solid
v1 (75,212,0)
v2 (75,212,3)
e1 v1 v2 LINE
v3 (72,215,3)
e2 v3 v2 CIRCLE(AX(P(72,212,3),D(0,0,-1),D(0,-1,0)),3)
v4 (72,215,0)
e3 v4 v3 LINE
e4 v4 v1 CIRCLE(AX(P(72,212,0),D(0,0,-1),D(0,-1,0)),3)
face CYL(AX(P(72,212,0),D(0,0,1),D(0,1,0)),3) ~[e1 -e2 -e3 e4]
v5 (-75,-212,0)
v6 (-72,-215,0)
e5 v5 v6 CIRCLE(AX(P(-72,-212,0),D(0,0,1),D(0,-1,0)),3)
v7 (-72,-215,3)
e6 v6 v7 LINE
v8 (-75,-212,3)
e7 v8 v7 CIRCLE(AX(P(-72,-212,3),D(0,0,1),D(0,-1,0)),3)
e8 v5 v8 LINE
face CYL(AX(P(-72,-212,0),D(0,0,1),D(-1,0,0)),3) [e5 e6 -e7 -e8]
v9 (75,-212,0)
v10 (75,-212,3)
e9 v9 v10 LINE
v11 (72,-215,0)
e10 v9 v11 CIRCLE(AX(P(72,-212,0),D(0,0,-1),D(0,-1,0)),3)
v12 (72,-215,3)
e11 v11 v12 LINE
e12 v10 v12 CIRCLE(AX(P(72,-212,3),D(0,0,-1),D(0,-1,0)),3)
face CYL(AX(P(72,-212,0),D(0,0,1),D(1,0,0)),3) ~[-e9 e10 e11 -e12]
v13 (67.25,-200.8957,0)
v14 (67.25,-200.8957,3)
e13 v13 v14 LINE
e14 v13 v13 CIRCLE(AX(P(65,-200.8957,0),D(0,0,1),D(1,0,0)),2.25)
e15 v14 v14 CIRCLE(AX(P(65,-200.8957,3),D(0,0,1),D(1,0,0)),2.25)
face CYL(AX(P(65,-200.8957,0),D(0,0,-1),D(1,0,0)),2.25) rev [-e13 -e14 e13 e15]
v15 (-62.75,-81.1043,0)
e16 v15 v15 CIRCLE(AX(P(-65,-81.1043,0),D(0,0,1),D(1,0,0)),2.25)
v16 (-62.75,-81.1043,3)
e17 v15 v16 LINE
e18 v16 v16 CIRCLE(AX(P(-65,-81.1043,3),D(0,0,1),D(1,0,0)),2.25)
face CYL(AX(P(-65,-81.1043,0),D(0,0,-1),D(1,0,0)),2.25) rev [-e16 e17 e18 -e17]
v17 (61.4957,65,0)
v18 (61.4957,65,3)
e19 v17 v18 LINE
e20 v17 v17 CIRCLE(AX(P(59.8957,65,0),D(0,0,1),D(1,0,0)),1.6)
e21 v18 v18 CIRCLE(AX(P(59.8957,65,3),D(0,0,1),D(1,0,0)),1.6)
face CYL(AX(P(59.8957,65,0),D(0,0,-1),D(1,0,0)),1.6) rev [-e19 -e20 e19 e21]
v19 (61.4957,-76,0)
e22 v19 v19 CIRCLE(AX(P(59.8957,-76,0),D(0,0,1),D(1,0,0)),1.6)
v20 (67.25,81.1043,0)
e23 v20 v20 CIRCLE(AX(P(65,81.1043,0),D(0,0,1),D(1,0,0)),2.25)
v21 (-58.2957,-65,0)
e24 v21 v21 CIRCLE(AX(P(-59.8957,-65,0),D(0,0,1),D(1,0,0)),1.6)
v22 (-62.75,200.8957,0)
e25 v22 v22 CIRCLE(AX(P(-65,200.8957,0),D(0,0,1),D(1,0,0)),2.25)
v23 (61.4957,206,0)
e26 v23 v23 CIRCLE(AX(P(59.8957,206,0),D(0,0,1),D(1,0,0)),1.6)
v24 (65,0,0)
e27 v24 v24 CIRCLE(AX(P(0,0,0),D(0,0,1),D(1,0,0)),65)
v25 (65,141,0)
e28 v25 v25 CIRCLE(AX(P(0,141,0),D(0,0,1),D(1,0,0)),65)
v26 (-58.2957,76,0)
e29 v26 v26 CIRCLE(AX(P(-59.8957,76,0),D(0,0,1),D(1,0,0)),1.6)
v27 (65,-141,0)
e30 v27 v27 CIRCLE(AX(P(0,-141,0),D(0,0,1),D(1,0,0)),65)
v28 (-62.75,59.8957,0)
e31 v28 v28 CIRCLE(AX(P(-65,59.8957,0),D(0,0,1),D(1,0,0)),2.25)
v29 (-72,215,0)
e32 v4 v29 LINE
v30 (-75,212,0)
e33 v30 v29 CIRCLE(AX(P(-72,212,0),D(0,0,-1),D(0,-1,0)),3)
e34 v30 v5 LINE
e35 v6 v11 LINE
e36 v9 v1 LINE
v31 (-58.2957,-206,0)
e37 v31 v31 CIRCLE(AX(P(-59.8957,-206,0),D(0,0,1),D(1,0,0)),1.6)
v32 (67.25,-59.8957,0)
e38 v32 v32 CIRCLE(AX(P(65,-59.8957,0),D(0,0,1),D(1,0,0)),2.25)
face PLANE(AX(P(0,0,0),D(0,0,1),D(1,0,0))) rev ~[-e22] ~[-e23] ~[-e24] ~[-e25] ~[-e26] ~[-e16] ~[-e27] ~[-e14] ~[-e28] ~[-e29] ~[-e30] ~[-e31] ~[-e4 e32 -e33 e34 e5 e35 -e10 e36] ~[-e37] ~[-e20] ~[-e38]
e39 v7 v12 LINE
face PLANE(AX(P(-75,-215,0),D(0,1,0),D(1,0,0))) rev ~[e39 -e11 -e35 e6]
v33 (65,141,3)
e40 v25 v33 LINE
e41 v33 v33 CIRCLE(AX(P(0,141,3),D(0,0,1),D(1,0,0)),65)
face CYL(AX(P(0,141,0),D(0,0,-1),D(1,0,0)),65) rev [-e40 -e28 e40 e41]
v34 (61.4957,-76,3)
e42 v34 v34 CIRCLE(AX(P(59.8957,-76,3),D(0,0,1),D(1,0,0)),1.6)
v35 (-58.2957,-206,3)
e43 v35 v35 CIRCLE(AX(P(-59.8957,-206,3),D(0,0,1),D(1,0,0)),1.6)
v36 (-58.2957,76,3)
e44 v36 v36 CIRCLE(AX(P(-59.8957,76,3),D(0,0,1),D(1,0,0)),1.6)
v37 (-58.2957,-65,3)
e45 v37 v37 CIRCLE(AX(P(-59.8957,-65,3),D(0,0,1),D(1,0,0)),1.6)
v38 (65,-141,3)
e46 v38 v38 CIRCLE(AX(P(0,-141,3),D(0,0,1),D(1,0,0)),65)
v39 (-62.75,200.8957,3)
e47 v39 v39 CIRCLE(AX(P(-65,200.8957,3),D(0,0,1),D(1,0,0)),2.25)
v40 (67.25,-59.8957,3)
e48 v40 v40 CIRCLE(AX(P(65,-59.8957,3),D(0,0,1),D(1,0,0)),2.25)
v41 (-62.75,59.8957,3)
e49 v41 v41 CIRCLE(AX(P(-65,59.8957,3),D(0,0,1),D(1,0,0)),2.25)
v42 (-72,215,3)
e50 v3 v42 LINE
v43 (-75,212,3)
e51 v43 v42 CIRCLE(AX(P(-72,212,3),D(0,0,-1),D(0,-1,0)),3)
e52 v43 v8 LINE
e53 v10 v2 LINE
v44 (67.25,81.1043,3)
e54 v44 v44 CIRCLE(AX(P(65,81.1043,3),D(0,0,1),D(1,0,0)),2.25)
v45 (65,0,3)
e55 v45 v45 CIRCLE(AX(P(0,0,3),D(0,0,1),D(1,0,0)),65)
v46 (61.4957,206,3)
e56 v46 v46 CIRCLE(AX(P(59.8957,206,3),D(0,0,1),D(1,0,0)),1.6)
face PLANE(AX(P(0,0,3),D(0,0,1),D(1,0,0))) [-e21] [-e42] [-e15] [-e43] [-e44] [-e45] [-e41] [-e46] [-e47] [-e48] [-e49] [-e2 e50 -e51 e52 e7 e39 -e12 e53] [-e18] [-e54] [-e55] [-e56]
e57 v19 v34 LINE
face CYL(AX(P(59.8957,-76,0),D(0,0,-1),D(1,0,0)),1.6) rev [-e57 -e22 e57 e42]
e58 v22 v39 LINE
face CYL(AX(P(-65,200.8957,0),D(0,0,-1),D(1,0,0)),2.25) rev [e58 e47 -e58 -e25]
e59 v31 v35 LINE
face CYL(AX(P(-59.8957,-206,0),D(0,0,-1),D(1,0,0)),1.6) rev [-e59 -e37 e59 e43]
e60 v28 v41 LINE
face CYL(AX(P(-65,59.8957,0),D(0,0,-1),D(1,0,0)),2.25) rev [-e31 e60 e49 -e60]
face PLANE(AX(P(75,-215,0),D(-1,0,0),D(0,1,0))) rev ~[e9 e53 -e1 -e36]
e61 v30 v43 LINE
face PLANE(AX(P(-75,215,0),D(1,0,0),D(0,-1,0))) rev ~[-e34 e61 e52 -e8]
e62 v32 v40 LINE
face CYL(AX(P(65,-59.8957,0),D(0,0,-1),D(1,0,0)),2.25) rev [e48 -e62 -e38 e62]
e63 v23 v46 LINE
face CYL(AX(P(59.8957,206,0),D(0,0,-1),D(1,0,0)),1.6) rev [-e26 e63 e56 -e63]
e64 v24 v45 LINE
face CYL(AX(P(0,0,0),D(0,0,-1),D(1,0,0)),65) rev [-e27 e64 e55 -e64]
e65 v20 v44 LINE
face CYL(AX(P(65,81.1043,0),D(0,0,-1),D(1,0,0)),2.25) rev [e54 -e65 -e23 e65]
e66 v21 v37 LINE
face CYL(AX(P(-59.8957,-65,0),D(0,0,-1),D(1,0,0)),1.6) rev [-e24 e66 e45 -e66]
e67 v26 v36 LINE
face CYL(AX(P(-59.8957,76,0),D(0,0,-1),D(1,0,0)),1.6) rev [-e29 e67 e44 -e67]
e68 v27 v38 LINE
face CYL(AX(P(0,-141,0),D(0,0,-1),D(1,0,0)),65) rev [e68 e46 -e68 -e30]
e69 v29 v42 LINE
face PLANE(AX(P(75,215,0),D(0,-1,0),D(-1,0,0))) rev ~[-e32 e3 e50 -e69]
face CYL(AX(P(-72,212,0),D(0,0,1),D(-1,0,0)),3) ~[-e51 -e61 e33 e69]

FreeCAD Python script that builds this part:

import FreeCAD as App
import Part
import Sketcher
from FreeCAD import Vector


def edges_at(feature, points):
    """Names of the edges that pass closest to the given points."""
    edges = feature.Shape.Edges
    near = lambda p: min(range(len(edges)), key=lambda i: edges[i].distToShape(Part.Vertex(*p))[0])
    return sorted({f"Edge{near(p) + 1}" for p in points})


def add_polygon(sketch, points):
    """Adds a closed chain of lines whose ends are joined by coincident constraints."""
    first, n = sketch.GeometryCount, len(points)
    for a, b in zip(points, points[1:] + points[:1]):
        sketch.addGeometry(Part.LineSegment(App.Vector(*a, 0), App.Vector(*b, 0)), False)
    for i in range(n):
        sketch.addConstraint(Sketcher.Constraint("Coincident", first + i, 2, first + (i + 1) % n, 1))

doc = App.newDocument("Part")
body = doc.addObject("PartDesign::Body", "Body")

sketch1 = body.newObject("Sketcher::SketchObject", "Sketch")
sketch1.AttachmentSupport = (doc.getObject("XY_Plane"), [""])
sketch1.MapMode = "FlatFace"
add_polygon(sketch1, [(-75, 215), (-75, -215), (75, -215), (75, 215)])
sketch1.addGeometry(Part.Circle(Vector(-59.9, -206, 0), Vector(0, 0, 1), 1.6), False)
sketch1.addGeometry(Part.Circle(Vector(-65, -81.1, 0), Vector(0, 0, 1), 2.2), False)
sketch1.addGeometry(Part.Circle(Vector(-59.9, -65, 0), Vector(0, 0, 1), 1.6), False)
sketch1.addGeometry(Part.Circle(Vector(0, -141, 0), Vector(0, 0, 1), 65), False)
sketch1.addGeometry(Part.Circle(Vector(65, -200.9, 0), Vector(0, 0, 1), 2.2), False)
sketch1.addGeometry(Part.Circle(Vector(59.9, -76, 0), Vector(0, 0, 1), 1.6), False)
sketch1.addGeometry(Part.Circle(Vector(65, -59.9, 0), Vector(0, 0, 1), 2.2), False)
sketch1.addGeometry(Part.Circle(Vector(-65, 59.9, 0), Vector(0, 0, 1), 2.2), False)
sketch1.addGeometry(Part.Circle(Vector(-59.9, 76, 0), Vector(0, 0, 1), 1.6), False)
sketch1.addGeometry(Part.Circle(Vector(-65, 200.9, 0), Vector(0, 0, 1), 2.2), False)
sketch1.addGeometry(Part.Circle(Vector(0, 0, 0), Vector(0, 0, 1), 65), False)
sketch1.addGeometry(Part.Circle(Vector(59.9, 65, 0), Vector(0, 0, 1), 1.6), False)
sketch1.addGeometry(Part.Circle(Vector(65, 81.1, 0), Vector(0, 0, 1), 2.2), False)
sketch1.addGeometry(Part.Circle(Vector(0, 141, 0), Vector(0, 0, 1), 65), False)
sketch1.addGeometry(Part.Circle(Vector(59.9, 206, 0), Vector(0, 0, 1), 1.6), False)
sketch1.addConstraint([
    Sketcher.Constraint("Vertical", 0),
    Sketcher.Constraint("Horizontal", 1),
    Sketcher.Constraint("Vertical", 2),
    Sketcher.Constraint("Horizontal", 3),
    Sketcher.Constraint("Coincident", 14, 3, -1, 1),
    Sketcher.Constraint("Equal", 4, 6),
    Sketcher.Constraint("Equal", 5, 8),
    Sketcher.Constraint("Equal", 6, 9),
    Sketcher.Constraint("Equal", 8, 10),
    Sketcher.Constraint("Equal", 10, 11),
    Sketcher.Constraint("Equal", 9, 12),
    Sketcher.Constraint("Equal", 11, 13),
    Sketcher.Constraint("Equal", 7, 14),
    Sketcher.Constraint("Equal", 12, 15),
    Sketcher.Constraint("Equal", 13, 16),
    Sketcher.Constraint("Equal", 14, 17),
    Sketcher.Constraint("Equal", 15, 18),
    Sketcher.Constraint("Symmetric", 10, 3, 11, 3, -1, 1),
    Sketcher.Constraint("Symmetric", 9, 3, 12, 3, -1, 1),
    Sketcher.Constraint("Symmetric", 8, 3, 13, 3, -1, 1),
    Sketcher.Constraint("Symmetric", 6, 3, 15, 3, -1, 1),
    Sketcher.Constraint("Symmetric", 5, 3, 16, 3, -1, 1),
    Sketcher.Constraint("Symmetric", 7, 3, 17, 3, -1, 1),
    Sketcher.Constraint("Symmetric", 4, 3, 18, 3, -1, 1),
    Sketcher.Constraint("Symmetric", 0, 2, 2, 2, -1, 1),
    Sketcher.Constraint("PointOnObject", 7, 3, -2),
    Sketcher.Constraint("Vertical", 4, 3, 6, 3),
    Sketcher.Constraint("Vertical", 8, 3, 10, 3),
    Sketcher.Constraint("Vertical", 5, 3, 11, 3),
    Sketcher.Constraint("Vertical", 6, 3, 12, 3),
    Sketcher.Constraint("Diameter", 7, 130.0),
    Sketcher.Constraint("Diameter", 4, 3.2),
    Sketcher.Constraint("Diameter", 5, 4.5),
    Sketcher.Constraint("DistanceX", 1, 1, 1, 2, 150.0),
    Sketcher.Constraint("DistanceY", 0, 2, 0, 1, 430.0),
    Sketcher.Constraint("DistanceX", 5, 3, -1, 1, 65.0),
    Sketcher.Constraint("DistanceY", 6, 3, -1, 1, 65.0),
    Sketcher.Constraint("DistanceY", 7, 3, -1, 1, 141.0),
    Sketcher.Constraint("DistanceY", 4, 3, 6, 3, 141.0),
    Sketcher.Constraint("DistanceY", 7, 3, 9, 3, 65.0),
    Sketcher.Constraint("DistanceY", 8, 3, 10, 3, 141.0),
    Sketcher.Constraint("DistanceY", 5, 3, 11, 3, 141.0),
    Sketcher.Constraint("DistanceX", 4, 3, -1, 1, 59.8957),
    Sketcher.Constraint("DistanceY", 5, 3, -1, 1, 81.1043),
])
pad1 = body.newObject("PartDesign::Pad", "Pad")
pad1.Profile = sketch1
pad1.Length = 3
doc.recompute()

fillet = body.newObject("PartDesign::Fillet", "Fillet")
fillet.Base = (pad1, edges_at(pad1, [
    (-75, 215, 1.5),
    (75, 215, 1.5),
    (-75, -215, 1.5),
    (75, -215, 1.5),
]))
fillet.Radius = 3

doc.recompute()
